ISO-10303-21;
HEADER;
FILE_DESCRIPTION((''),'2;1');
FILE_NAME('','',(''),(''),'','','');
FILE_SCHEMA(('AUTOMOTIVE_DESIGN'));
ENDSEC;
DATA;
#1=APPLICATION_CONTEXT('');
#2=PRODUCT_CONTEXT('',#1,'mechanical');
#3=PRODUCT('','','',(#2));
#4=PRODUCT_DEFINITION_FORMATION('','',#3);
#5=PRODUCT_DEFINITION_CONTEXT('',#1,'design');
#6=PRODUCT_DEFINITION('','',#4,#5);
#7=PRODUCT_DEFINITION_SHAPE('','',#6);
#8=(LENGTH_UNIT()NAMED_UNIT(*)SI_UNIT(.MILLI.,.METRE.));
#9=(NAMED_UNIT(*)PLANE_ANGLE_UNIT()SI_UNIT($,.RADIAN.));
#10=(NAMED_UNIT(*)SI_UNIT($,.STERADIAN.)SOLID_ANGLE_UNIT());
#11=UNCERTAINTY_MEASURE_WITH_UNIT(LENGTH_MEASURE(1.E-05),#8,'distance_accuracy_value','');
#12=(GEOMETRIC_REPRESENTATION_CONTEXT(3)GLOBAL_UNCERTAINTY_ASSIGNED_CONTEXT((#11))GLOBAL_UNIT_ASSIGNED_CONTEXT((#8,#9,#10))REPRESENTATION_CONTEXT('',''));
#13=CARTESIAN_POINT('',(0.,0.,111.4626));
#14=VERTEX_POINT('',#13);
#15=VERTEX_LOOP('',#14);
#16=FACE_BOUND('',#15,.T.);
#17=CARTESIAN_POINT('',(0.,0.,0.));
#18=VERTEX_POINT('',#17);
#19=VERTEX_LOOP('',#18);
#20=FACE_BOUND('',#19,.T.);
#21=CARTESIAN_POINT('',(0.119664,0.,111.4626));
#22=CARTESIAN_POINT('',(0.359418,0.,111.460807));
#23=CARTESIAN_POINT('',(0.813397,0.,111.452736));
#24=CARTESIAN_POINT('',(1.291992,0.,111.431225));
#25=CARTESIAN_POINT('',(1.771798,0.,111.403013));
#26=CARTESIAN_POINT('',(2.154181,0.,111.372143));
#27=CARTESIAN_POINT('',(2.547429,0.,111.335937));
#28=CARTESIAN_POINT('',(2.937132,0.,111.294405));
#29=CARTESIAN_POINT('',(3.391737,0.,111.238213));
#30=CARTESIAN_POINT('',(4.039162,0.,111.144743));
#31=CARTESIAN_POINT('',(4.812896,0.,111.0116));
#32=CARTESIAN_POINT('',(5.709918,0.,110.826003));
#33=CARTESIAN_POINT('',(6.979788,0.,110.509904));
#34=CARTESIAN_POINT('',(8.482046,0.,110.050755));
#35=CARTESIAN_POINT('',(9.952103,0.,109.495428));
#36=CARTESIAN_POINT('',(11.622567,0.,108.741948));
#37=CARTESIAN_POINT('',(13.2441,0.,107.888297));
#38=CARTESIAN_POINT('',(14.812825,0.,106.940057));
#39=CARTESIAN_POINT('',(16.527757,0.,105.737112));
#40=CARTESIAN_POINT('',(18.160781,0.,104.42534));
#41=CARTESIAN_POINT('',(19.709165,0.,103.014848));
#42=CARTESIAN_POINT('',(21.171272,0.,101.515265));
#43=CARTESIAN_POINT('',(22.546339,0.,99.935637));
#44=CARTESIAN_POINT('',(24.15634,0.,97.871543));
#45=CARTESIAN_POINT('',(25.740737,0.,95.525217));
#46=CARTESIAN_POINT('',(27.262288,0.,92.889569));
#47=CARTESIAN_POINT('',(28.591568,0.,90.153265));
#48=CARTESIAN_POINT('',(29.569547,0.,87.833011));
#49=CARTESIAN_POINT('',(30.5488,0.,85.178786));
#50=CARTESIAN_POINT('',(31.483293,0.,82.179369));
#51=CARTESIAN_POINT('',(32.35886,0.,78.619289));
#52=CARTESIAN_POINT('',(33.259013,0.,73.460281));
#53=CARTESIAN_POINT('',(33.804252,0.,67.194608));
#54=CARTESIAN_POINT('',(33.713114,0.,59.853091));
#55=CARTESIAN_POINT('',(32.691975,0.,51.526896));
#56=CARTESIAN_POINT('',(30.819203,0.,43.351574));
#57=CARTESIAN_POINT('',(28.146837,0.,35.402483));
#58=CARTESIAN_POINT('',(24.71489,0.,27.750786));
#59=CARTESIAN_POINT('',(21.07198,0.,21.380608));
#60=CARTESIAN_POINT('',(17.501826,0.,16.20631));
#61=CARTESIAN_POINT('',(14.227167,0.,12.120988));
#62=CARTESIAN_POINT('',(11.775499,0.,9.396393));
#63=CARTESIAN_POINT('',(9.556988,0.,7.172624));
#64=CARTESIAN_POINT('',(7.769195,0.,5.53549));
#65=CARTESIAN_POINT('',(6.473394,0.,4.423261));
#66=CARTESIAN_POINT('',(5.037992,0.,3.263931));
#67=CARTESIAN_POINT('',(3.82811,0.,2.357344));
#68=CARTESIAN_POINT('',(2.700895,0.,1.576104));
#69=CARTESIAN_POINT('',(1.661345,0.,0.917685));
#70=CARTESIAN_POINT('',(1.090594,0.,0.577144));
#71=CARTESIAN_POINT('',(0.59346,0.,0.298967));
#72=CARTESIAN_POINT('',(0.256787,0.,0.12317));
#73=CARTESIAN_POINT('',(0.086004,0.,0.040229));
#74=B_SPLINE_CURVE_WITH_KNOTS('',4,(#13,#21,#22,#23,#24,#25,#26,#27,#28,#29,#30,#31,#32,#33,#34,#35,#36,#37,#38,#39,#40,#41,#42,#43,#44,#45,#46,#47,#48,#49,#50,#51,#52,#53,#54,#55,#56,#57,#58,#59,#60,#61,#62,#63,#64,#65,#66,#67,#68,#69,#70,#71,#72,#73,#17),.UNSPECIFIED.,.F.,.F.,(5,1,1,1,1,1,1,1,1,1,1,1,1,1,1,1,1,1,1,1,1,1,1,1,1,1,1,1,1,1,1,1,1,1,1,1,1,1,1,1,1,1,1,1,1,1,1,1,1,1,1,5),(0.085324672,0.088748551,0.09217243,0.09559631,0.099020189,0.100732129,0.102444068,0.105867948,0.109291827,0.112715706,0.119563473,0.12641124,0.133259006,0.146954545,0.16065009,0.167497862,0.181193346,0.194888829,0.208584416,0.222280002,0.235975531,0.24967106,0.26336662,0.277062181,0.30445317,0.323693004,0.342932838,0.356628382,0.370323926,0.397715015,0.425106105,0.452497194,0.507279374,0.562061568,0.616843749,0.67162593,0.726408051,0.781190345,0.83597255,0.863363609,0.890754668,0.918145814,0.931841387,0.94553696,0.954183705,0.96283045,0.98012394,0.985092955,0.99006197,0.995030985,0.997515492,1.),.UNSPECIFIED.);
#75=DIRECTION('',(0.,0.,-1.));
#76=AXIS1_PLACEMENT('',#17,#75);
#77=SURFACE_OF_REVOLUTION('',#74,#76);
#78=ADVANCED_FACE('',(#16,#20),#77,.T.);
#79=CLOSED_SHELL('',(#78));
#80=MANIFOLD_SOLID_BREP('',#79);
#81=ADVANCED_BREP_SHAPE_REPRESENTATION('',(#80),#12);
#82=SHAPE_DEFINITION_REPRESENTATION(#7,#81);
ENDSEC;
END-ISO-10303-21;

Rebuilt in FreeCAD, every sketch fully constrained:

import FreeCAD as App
import Part
import Sketcher

doc = App.newDocument("Part")
body = doc.addObject("PartDesign::Body", "Body")

sketch1 = body.newObject("Sketcher::SketchObject", "Sketch")
sketch1.AttachmentSupport = (doc.getObject("XZ_Plane"), [""])
sketch1.MapMode = "FlatFace"
sketch1.addGeometry(Part.LineSegment(App.Vector(0, 0, 0), App.Vector(0, 111.4626, 0)), False)
sketch1.addGeometry(Part.BSplineCurve([App.Vector(0, 111.4626, 0), App.Vector(0.119664, 111.4626, 0), App.Vector(0.359418, 111.460807, 0), App.Vector(0.813397, 111.452736, 0), App.Vector(1.291992, 111.431225, 0), App.Vector(1.771798, 111.403013, 0), App.Vector(2.154181, 111.372143, 0), App.Vector(2.547429, 111.335937, 0), App.Vector(2.937132, 111.294405, 0), App.Vector(3.391737, 111.238213, 0), App.Vector(4.039162, 111.144743, 0), App.Vector(4.812896, 111.0116, 0), App.Vector(5.709918, 110.826003, 0), App.Vector(6.979788, 110.509904, 0), App.Vector(8.482046, 110.050755, 0), App.Vector(9.952103, 109.495428, 0), App.Vector(11.622567, 108.741948, 0), App.Vector(13.2441, 107.888297, 0), App.Vector(14.812825, 106.940057, 0), App.Vector(16.527757, 105.737112, 0), App.Vector(18.160781, 104.42534, 0), App.Vector(19.709165, 103.014848, 0), App.Vector(21.171272, 101.515265, 0), App.Vector(22.546339, 99.935637, 0), App.Vector(24.15634, 97.871543, 0), App.Vector(25.740737, 95.525217, 0), App.Vector(27.262288, 92.889569, 0), App.Vector(28.591568, 90.153265, 0), App.Vector(29.569547, 87.833011, 0), App.Vector(30.5488, 85.178786, 0), App.Vector(31.483293, 82.179369, 0), App.Vector(32.35886, 78.619289, 0), App.Vector(33.259013, 73.460281, 0), App.Vector(33.804252, 67.194608, 0), App.Vector(33.713114, 59.853091, 0), App.Vector(32.691975, 51.526896, 0), App.Vector(30.819203, 43.351574, 0), App.Vector(28.146837, 35.402483, 0), App.Vector(24.71489, 27.750786, 0), App.Vector(21.07198, 21.380608, 0), App.Vector(17.501826, 16.20631, 0), App.Vector(14.227167, 12.120988, 0), App.Vector(11.775499, 9.396393, 0), App.Vector(9.556988, 7.172624, 0), App.Vector(7.769195, 5.53549, 0), App.Vector(6.473394, 4.423261, 0), App.Vector(5.037992, 3.263931, 0), App.Vector(3.82811, 2.357344, 0), App.Vector(2.700895, 1.576104, 0), App.Vector(1.661345, 0.917685, 0), App.Vector(1.090594, 0.577144, 0), App.Vector(0.59346, 0.298967, 0), App.Vector(0.256787, 0.12317, 0), App.Vector(0.086004, 0.040229, 0), App.Vector(0, 0, 0)], [5, 1, 1, 1, 1, 1, 1, 1, 1, 1, 1, 1, 1, 1, 1, 1, 1, 1, 1, 1, 1, 1, 1, 1, 1, 1, 1, 1, 1, 1, 1, 1, 1, 1, 1, 1, 1, 1, 1, 1, 1, 1, 1, 1, 1, 1, 1, 1, 1, 1, 1, 5], [0.085324672, 0.088748551, 0.09217243, 0.09559631, 0.099020189, 0.100732129, 0.102444068, 0.105867948, 0.109291827, 0.112715706, 0.119563473, 0.12641124, 0.133259006, 0.146954545, 0.16065009, 0.167497862, 0.181193346, 0.194888829, 0.208584416, 0.222280002, 0.235975531, 0.24967106, 0.26336662, 0.277062181, 0.30445317, 0.323693004, 0.342932838, 0.356628382, 0.370323926, 0.397715015, 0.425106105, 0.452497194, 0.507279374, 0.562061568, 0.616843749, 0.67162593, 0.726408051, 0.781190345, 0.83597255, 0.863363609, 0.890754668, 0.918145814, 0.931841387, 0.94553696, 0.954183705, 0.96283045, 0.98012394, 0.985092955, 0.99006197, 0.995030985, 0.997515492, 1], False, 4, [1, 1, 1, 1, 1, 1, 1, 1, 1, 1, 1, 1, 1, 1, 1, 1, 1, 1, 1, 1, 1, 1, 1, 1, 1, 1, 1, 1, 1, 1, 1, 1, 1, 1, 1, 1, 1, 1, 1, 1, 1, 1, 1, 1, 1, 1, 1, 1, 1, 1, 1, 1, 1, 1, 1], False), False)
sketch1.addConstraint(Sketcher.Constraint("Block", 1))
sketch1.addConstraint(Sketcher.Constraint("Coincident", 0, 1, 1, 2))
sketch1.addConstraint(Sketcher.Constraint("Coincident", 1, 1, 0, 2))
revolution = body.newObject("PartDesign::Revolution", "Revolution")
revolution.Profile = sketch1
revolution.ReferenceAxis = (sketch1, ["V_Axis"])
revolution.Angle = 360

doc.recompute()
